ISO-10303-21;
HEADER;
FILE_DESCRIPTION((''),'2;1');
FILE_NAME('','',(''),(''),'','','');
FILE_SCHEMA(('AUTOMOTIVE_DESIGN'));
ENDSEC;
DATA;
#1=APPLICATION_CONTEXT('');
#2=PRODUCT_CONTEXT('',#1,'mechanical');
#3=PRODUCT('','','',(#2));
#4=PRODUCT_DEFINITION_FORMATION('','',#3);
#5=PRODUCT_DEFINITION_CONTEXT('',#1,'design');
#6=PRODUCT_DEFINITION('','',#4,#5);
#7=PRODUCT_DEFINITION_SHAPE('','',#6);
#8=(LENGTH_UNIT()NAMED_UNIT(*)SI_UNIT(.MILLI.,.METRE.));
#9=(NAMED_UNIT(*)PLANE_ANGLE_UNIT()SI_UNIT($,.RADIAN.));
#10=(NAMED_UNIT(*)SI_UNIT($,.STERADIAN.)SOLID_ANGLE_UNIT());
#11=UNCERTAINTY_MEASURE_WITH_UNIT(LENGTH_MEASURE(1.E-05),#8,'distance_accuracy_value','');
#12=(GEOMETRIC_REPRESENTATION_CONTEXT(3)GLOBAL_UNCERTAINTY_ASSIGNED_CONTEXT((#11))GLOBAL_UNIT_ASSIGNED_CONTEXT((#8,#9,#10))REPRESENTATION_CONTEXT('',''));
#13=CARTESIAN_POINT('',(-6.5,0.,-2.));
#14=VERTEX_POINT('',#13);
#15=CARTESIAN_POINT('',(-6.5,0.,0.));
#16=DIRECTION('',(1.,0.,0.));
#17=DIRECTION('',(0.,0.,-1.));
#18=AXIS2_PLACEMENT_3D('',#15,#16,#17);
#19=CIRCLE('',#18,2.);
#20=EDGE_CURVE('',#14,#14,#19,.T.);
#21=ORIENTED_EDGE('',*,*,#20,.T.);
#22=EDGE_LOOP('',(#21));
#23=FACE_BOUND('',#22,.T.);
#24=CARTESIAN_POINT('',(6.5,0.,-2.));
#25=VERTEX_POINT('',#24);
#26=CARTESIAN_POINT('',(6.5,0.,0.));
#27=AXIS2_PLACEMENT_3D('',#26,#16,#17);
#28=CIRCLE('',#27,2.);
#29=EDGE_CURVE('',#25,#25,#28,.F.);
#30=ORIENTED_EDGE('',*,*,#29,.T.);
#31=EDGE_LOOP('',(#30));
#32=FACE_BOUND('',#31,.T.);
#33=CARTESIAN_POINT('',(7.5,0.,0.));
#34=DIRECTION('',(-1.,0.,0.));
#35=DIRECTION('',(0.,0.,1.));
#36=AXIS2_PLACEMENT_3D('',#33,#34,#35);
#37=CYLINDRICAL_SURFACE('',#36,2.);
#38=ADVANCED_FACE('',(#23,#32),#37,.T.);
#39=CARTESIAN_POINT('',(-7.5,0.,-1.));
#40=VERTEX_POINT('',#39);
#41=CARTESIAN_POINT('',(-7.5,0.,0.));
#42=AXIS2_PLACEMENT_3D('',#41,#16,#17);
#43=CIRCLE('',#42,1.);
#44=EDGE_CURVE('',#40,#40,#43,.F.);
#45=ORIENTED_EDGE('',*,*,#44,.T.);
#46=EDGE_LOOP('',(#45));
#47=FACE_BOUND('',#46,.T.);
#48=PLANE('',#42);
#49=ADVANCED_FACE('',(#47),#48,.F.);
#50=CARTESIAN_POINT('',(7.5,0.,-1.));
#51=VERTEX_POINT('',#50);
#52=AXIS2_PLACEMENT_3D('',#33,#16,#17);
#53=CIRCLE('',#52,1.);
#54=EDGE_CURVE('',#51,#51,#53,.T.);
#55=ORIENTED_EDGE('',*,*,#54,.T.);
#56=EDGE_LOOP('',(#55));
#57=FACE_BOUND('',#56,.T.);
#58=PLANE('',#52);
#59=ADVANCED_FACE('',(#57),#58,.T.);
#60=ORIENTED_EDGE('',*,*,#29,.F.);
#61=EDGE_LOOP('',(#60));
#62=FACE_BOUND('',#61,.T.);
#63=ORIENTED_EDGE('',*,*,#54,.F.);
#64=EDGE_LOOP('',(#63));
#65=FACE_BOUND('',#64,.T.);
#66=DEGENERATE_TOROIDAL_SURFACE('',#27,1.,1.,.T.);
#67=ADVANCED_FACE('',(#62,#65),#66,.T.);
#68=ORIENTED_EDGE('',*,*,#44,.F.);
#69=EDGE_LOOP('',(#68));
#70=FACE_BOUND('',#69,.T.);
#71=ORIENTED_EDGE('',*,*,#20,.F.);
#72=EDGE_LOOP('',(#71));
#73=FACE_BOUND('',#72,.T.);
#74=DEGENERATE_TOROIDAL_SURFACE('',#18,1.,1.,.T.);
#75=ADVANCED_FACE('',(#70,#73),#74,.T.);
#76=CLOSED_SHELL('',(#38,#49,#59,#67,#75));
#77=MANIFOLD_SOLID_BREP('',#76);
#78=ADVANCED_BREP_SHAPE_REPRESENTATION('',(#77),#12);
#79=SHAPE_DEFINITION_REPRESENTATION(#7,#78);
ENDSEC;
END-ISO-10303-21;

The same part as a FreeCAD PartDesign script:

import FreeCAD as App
import Part
import Sketcher

V = App.Vector
Q = App.Units.Quantity


def edges_at(feature, points):
    """Names of the edges that pass closest to the given points."""
    edges = feature.Shape.Edges
    near = lambda p: min(range(len(edges)), key=lambda i: edges[i].distToShape(Part.Vertex(*p))[0])
    return sorted({f"Edge{near(p) + 1}" for p in points})

doc = App.newDocument("Part")
body = doc.addObject("PartDesign::Body", "Body")

# Sketch on YZ plane
sketch1 = body.newObject("Sketcher::SketchObject", "Sketch")
sketch1.AttachmentSupport = (doc.getObject("YZ_Plane"), [""])
sketch1.MapMode = "FlatFace"
sketch1.addGeometry(Part.Circle(V(0, 0, 0), V(0, 0, 1), 2), False)
sketch1.addConstraint([
    Sketcher.Constraint("Coincident", 0, 3, -1, 1),
    Sketcher.Constraint("Diameter", 0, Q("4 mm")),
])
pad1 = body.newObject("PartDesign::Pad", "Pad")
pad1.Profile = sketch1
pad1.Length = 15
pad1.Midplane = True
doc.recompute()

fillet = body.newObject("PartDesign::Fillet", "Fillet")
fillet.Base = (pad1, edges_at(pad1, [(-7.5, 0, 2), (7.5, 0, 2)]))
fillet.Radius = 1

doc.recompute()
